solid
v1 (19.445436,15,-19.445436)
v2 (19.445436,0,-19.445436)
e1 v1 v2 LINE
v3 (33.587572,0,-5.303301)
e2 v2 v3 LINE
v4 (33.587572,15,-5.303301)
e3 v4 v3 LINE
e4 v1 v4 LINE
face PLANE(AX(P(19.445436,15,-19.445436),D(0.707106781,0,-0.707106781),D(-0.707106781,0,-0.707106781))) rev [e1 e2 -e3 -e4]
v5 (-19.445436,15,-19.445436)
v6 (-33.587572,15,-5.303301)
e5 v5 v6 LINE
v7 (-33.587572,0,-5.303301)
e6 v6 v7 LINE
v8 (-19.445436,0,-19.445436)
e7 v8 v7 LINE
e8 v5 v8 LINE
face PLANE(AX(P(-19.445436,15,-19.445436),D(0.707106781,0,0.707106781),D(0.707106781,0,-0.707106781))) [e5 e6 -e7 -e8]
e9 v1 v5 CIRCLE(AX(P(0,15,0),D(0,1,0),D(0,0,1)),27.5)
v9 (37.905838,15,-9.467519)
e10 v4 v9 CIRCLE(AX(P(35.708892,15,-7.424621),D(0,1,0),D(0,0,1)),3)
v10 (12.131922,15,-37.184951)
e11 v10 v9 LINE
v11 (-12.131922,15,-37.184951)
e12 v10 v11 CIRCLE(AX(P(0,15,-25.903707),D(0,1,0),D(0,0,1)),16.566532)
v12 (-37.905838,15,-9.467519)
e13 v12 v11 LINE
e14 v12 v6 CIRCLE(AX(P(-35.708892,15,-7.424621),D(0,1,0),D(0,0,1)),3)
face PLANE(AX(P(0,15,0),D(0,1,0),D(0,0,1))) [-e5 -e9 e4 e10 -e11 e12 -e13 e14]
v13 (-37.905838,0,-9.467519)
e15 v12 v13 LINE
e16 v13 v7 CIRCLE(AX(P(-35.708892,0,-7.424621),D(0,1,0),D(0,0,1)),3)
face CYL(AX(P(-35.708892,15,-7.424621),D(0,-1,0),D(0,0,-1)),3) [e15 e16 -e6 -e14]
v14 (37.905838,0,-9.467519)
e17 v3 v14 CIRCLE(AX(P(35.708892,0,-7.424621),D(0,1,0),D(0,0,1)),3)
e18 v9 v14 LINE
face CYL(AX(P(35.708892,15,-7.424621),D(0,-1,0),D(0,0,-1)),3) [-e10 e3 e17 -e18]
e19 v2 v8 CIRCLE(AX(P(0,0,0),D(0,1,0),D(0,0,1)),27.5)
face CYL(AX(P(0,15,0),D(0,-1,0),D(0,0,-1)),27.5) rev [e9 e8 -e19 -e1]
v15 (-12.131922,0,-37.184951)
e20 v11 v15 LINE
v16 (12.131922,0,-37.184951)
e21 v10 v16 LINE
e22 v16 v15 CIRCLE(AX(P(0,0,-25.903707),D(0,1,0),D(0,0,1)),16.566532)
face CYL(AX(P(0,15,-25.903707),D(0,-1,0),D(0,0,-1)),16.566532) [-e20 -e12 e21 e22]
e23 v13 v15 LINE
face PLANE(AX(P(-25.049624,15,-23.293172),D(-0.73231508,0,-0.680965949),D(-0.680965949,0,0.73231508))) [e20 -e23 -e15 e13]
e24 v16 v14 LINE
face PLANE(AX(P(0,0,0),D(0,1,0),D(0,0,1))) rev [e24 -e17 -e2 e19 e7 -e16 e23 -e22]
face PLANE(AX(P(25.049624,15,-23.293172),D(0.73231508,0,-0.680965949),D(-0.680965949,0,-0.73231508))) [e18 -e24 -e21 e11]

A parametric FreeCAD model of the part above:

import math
import FreeCAD as App
import Part
import Sketcher
from FreeCAD import Vector

doc = App.newDocument("Part")
params = doc.addObject("Spreadsheet::Sheet", "Params")
for row, (alias, value) in enumerate([
    ("sketch1_radius", "3 mm"),
    ("sketch1_radius2", "27.5 mm"),
    ("sketch1_length", "20 mm"),
    ("pad1_length", "15 mm"),
], start=1):
    params.set(f"A{row}", alias)
    params.set(f"B{row}", "=" + value)
    params.setAlias(f"B{row}", alias)

body = doc.addObject("PartDesign::Body", "Body")

# Sketch on XZ plane
sketch1 = body.newObject("Sketcher::SketchObject", "Sketch")
sketch1.AttachmentSupport = (doc.getObject("XZ_Plane"), [""])
sketch1.MapMode = "FlatFace"
sketch1.addGeometry(Part.LineSegment(Vector(-33.6, -5.3, 0), Vector(-19.4, -19.4, 0)), False)
sketch1.addGeometry(Part.ArcOfCircle(Part.Circle(Vector(0, 0, 0), Vector(0, 0, 1), 27.5), math.radians(-135), math.radians(-45)), False)
sketch1.addGeometry(Part.LineSegment(Vector(19.4, -19.4, 0), Vector(33.6, -5.3, 0)), False)
sketch1.addGeometry(Part.ArcOfCircle(Part.Circle(Vector(35.7, -7.4, 0), Vector(0, 0, 1), 3), math.radians(-43), math.radians(135)), False)
sketch1.addGeometry(Part.LineSegment(Vector(37.9, -9.5, 0), Vector(12.1, -37.2, 0)), False)
sketch1.addGeometry(Part.ArcOfCircle(Part.Circle(Vector(0, -25.9, 0), Vector(0, 0, 1), 16.6), math.radians(-137), math.radians(-43)), False)
sketch1.addGeometry(Part.LineSegment(Vector(-12.1, -37.2, 0), Vector(-37.9, -9.5, 0)), False)
sketch1.addGeometry(Part.ArcOfCircle(Part.Circle(Vector(-35.7, -7.4, 0), Vector(0, 0, 1), 3), math.radians(45), math.radians(223)), False)
sketch1.addConstraint(Sketcher.Constraint("Tangent", 0, 2, 1, 1))
sketch1.addConstraint(Sketcher.Constraint("Tangent", 1, 2, 2, 1))
sketch1.addConstraint(Sketcher.Constraint("Tangent", 2, 2, 3, 2))
sketch1.addConstraint(Sketcher.Constraint("Tangent", 3, 1, 4, 1))
sketch1.addConstraint(Sketcher.Constraint("Tangent", 4, 2, 5, 2))
sketch1.addConstraint(Sketcher.Constraint("Tangent", 5, 1, 6, 1))
sketch1.addConstraint(Sketcher.Constraint("Tangent", 6, 2, 7, 2))
sketch1.addConstraint(Sketcher.Constraint("Tangent", 7, 1, 0, 1))
sketch1.addConstraint(Sketcher.Constraint("Coincident", 1, 3, -1, 1))
sketch1.addConstraint(Sketcher.Constraint("Equal", 3, 7))
sketch1.addConstraint(Sketcher.Constraint("Symmetric", 3, 3, 7, 3, -2))
sketch1.addConstraint(Sketcher.Constraint("PointOnObject", 5, 3, -2))
sketch1.addConstraint(Sketcher.Constraint("Perpendicular", 0, 2))
sketch1.addConstraint(Sketcher.Constraint("Radius", 3, 3.0))
sketch1.addConstraint(Sketcher.Constraint("Radius", 1, 27.5))
sketch1.addConstraint(Sketcher.Constraint("Distance", 0, 20.0))
sketch1.addConstraint(Sketcher.Constraint("Radius", 5, 16.566532))
sketch1.addConstraint(Sketcher.Constraint("DistanceX", 6, 2, 0, 2, 18.460401))
sketch1.setExpression("Constraints[13]", "Params.sketch1_radius")
sketch1.setExpression("Constraints[14]", "Params.sketch1_radius2")
sketch1.setExpression("Constraints[15]", "Params.sketch1_length")
pad1 = body.newObject("PartDesign::Pad", "Pad")
pad1.Profile = sketch1
pad1.setExpression("Length", "Params.pad1_length")
pad1.Reversed = True

doc.recompute()
